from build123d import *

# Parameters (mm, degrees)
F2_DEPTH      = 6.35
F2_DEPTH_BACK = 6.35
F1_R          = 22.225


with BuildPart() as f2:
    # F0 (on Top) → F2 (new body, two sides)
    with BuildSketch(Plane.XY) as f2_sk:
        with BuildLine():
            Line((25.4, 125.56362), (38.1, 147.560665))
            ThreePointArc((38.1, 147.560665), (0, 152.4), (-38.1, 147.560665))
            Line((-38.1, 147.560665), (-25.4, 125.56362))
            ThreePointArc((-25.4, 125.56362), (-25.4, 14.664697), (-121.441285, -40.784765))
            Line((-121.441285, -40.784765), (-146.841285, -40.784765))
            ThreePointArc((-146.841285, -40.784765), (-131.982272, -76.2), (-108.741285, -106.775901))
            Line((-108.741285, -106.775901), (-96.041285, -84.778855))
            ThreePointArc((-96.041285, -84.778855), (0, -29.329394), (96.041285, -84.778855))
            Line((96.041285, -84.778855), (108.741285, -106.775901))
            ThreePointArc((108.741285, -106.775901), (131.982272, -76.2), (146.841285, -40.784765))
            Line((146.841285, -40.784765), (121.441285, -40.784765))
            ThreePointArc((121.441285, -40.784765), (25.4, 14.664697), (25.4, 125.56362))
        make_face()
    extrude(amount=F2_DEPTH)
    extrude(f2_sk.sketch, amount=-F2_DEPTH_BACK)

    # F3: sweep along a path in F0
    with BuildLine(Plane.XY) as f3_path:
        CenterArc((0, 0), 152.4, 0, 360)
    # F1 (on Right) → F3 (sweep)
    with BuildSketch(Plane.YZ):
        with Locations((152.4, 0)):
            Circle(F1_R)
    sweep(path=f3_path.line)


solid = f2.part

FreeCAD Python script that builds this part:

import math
import FreeCAD as App
import Part
import Sketcher

V = App.Vector
Q = App.Units.Quantity

doc = App.newDocument("Part")
body = doc.addObject("PartDesign::Body", "Body")

# Sketch on XY plane
sketch1 = body.newObject("Sketcher::SketchObject", "Sketch")
sketch1.AttachmentSupport = (doc.getObject("XY_Plane"), [""])
sketch1.MapMode = "FlatFace"
sketch1.addGeometry(Part.LineSegment(V(25, 126, 0), V(38, 148, 0)), False)
sketch1.addGeometry(Part.ArcOfCircle(Part.Circle(V(0, 0, 0), V(0, 0, 1), 152), math.radians(76), math.radians(104)), False)
sketch1.addGeometry(Part.LineSegment(V(-38, 148, 0), V(-25, 126, 0)), False)
sketch1.addGeometry(Part.ArcOfCircle(Part.Circle(V(-121, 70, 0), V(0, 0, 1), 111), math.radians(-90), math.radians(30)), False)
sketch1.addGeometry(Part.LineSegment(V(-121, -41, 0), V(-147, -41, 0)), False)
sketch1.addGeometry(Part.ArcOfCircle(Part.Circle(V(0, 0, 0), V(0, 0, 1), 152), math.radians(-164), math.radians(-136)), False)
sketch1.addGeometry(Part.LineSegment(V(-109, -107, 0), V(-96, -85, 0)), False)
sketch1.addGeometry(Part.ArcOfCircle(Part.Circle(V(0, -140, 0), V(0, 0, 1), 111), math.radians(30), math.radians(150)), False)
sketch1.addGeometry(Part.LineSegment(V(96, -85, 0), V(109, -107, 0)), False)
sketch1.addGeometry(Part.ArcOfCircle(Part.Circle(V(0, 0, 0), V(0, 0, 1), 152), math.radians(-44), math.radians(-16)), False)
sketch1.addGeometry(Part.LineSegment(V(147, -41, 0), V(121, -41, 0)), False)
sketch1.addGeometry(Part.ArcOfCircle(Part.Circle(V(121, 70, 0), V(0, 0, 1), 111), math.radians(150), math.radians(270)), False)
sketch1.addConstraint(Sketcher.Constraint("Coincident", 0, 2, 1, 1))
sketch1.addConstraint(Sketcher.Constraint("Coincident", 1, 2, 2, 1))
sketch1.addConstraint(Sketcher.Constraint("Tangent", 2, 2, 3, 2))
sketch1.addConstraint(Sketcher.Constraint("Tangent", 3, 1, 4, 1))
sketch1.addConstraint(Sketcher.Constraint("Coincident", 4, 2, 5, 1))
sketch1.addConstraint(Sketcher.Constraint("Coincident", 5, 2, 6, 1))
sketch1.addConstraint(Sketcher.Constraint("Tangent", 6, 2, 7, 2))
sketch1.addConstraint(Sketcher.Constraint("Tangent", 7, 1, 8, 1))
sketch1.addConstraint(Sketcher.Constraint("Coincident", 8, 2, 9, 1))
sketch1.addConstraint(Sketcher.Constraint("Coincident", 9, 2, 10, 1))
sketch1.addConstraint(Sketcher.Constraint("Tangent", 10, 2, 11, 2))
sketch1.addConstraint(Sketcher.Constraint("Tangent", 11, 1, 0, 1))
sketch1.addConstraint(Sketcher.Constraint("Horizontal", 4))
sketch1.addConstraint(Sketcher.Constraint("Horizontal", 10))
sketch1.addConstraint(Sketcher.Constraint("Coincident", 5, 3, -1, 1))
sketch1.addConstraint(Sketcher.Constraint("Coincident", 9, 3, -1, 1))
sketch1.addConstraint(Sketcher.Constraint("Equal", 3, 7))
sketch1.addConstraint(Sketcher.Constraint("Equal", 5, 9))
sketch1.addConstraint(Sketcher.Constraint("Equal", 7, 11))
sketch1.addConstraint(Sketcher.Constraint("Symmetric", 3, 3, 11, 3, -2))
sketch1.addConstraint(Sketcher.Constraint("Symmetric", 0, 2, 1, 2, -2))
sketch1.addConstraint(Sketcher.Constraint("Symmetric", 6, 2, 7, 1, -2))
sketch1.addConstraint(Sketcher.Constraint("Parallel", 0, 6))
sketch1.addConstraint(Sketcher.Constraint("Equal", 2, 6))
sketch1.addConstraint(Sketcher.Constraint("DistanceX", 4, 2, 4, 1, Q("1 in")))
sketch1.addConstraint(Sketcher.Constraint("Distance", 0, Q("1 in")))
sketch1.addConstraint(Sketcher.Constraint("DistanceX", 2, 2, -1, 1, Q("1 in")))
sketch1.addConstraint(Sketcher.Constraint("Angle", 0, Q("60 deg")))
sketch1.addConstraint(Sketcher.Constraint("DistanceY", -1, 1, 3, 3, Q("2.7603999 in")))
sketch1.addConstraint(Sketcher.Constraint("DistanceY", 7, 3, -1, 1, Q("5.5207999 in")))
sketch1.addConstraint(Sketcher.Constraint("Radius", 1, 152.399985))
pad1 = body.newObject("PartDesign::Pad", "Pad")
pad1.Profile = sketch1
pad1.Type = "TwoLengths"
pad1.Length = Q("0.25 in")
pad1.Length2 = Q("0.25 in")

# Sketch on YZ plane
sketch2 = body.newObject("Sketcher::SketchObject", "Sketch001")
sketch2.AttachmentSupport = (doc.getObject("YZ_Plane"), [""])
sketch2.MapMode = "FlatFace"
sketch2.addGeometry(Part.Circle(V(152, 0, 0), V(0, 0, 1), 22), False)
sketch2.addConstraint(Sketcher.Constraint("PointOnObject", 0, 3, -1))
sketch2.addConstraint(Sketcher.Constraint("Diameter", 0, Q("1.75 in")))
sketch2.addConstraint(Sketcher.Constraint("DistanceX", -1, 1, 0, 3, Q("6 in")))

# Sketch on XY plane
sketch3 = body.newObject("Sketcher::SketchObject", "Sketch002")
sketch3.AttachmentSupport = (doc.getObject("XY_Plane"), [""])
sketch3.MapMode = "FlatFace"
sketch3.addGeometry(Part.Circle(V(0, 0, 0), V(0, 0, 1), 152), False)
sketch3.addConstraint(Sketcher.Constraint("Coincident", 0, 3, -1, 1))
sketch3.addConstraint(Sketcher.Constraint("Diameter", 0, Q("12 in")))
doc.recompute()

additivepipe = body.newObject("PartDesign::AdditivePipe", "AdditivePipe")
additivepipe.Profile = sketch2
additivepipe.Spine = (sketch3, ["Edge1"])

doc.recompute()
